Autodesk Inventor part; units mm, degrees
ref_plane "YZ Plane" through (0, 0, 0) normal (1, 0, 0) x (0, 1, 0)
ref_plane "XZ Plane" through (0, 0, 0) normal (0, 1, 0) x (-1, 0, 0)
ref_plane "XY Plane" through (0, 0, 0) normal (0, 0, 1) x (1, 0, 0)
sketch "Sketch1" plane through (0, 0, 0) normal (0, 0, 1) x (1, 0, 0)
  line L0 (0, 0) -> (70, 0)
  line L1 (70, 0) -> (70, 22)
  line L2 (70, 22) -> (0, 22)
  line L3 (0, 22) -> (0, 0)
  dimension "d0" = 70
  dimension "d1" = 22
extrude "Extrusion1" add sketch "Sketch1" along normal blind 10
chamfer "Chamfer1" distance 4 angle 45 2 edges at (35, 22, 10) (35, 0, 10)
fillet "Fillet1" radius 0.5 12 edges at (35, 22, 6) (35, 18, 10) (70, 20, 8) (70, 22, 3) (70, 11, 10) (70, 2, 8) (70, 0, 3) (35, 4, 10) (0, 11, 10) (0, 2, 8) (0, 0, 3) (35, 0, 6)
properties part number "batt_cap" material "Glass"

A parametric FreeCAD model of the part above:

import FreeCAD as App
import Part
import Sketcher

V = App.Vector
Q = App.Units.Quantity


def edges_at(feature, points):
    """Names of the edges that pass closest to the given points."""
    edges = feature.Shape.Edges
    near = lambda p: min(range(len(edges)), key=lambda i: edges[i].distToShape(Part.Vertex(*p))[0])
    return sorted({f"Edge{near(p) + 1}" for p in points})

doc = App.newDocument("Part")
body = doc.addObject("PartDesign::Body", "Body")

# Sketch on XY plane
sketch1 = body.newObject("Sketcher::SketchObject", "Sketch")
sketch1.AttachmentSupport = (doc.getObject("XY_Plane"), [""])
sketch1.MapMode = "FlatFace"
sketch1.addGeometry(Part.LineSegment(V(0, 22, 0), V(0, 0, 0)), False)
sketch1.addGeometry(Part.LineSegment(V(0, 0, 0), V(70, 0, 0)), False)
sketch1.addGeometry(Part.LineSegment(V(70, 0, 0), V(70, 22, 0)), False)
sketch1.addGeometry(Part.LineSegment(V(70, 22, 0), V(0, 22, 0)), False)
sketch1.addConstraint(Sketcher.Constraint("Coincident", 0, 2, 1, 1))
sketch1.addConstraint(Sketcher.Constraint("Coincident", 1, 2, 2, 1))
sketch1.addConstraint(Sketcher.Constraint("Coincident", 2, 2, 3, 1))
sketch1.addConstraint(Sketcher.Constraint("Coincident", 3, 2, 0, 1))
sketch1.addConstraint(Sketcher.Constraint("Vertical", 0))
sketch1.addConstraint(Sketcher.Constraint("Horizontal", 1))
sketch1.addConstraint(Sketcher.Constraint("Vertical", 2))
sketch1.addConstraint(Sketcher.Constraint("Horizontal", 3))
sketch1.addConstraint(Sketcher.Constraint("Coincident", 0, 2, -1, 1))
sketch1.addConstraint(Sketcher.Constraint("DistanceX", 1, 1, 1, 2, Q("70 mm")))
sketch1.addConstraint(Sketcher.Constraint("DistanceY", 0, 2, 0, 1, Q("22 mm")))
pad1 = body.newObject("PartDesign::Pad", "Pad")
pad1.Profile = sketch1
pad1.Length = 10
doc.recompute()

chamfer = body.newObject("PartDesign::Chamfer", "Chamfer")
chamfer.Base = (pad1, edges_at(pad1, [(35, 22, 10), (35, 0, 10)]))
chamfer.Size = 4
doc.recompute()

fillet = body.newObject("PartDesign::Fillet", "Fillet")
fillet.Base = (chamfer, edges_at(chamfer, [
    (35, 22, 6),
    (35, 18, 10),
    (70, 20, 8),
    (70, 22, 3),
    (70, 11, 10),
    (70, 2, 8),
    (70, 0, 3),
    (35, 4, 10),
    (0, 11, 10),
    (0, 2, 8),
    (0, 0, 3),
    (35, 0, 6),
]))
fillet.Radius = 0.5

doc.recompute()
